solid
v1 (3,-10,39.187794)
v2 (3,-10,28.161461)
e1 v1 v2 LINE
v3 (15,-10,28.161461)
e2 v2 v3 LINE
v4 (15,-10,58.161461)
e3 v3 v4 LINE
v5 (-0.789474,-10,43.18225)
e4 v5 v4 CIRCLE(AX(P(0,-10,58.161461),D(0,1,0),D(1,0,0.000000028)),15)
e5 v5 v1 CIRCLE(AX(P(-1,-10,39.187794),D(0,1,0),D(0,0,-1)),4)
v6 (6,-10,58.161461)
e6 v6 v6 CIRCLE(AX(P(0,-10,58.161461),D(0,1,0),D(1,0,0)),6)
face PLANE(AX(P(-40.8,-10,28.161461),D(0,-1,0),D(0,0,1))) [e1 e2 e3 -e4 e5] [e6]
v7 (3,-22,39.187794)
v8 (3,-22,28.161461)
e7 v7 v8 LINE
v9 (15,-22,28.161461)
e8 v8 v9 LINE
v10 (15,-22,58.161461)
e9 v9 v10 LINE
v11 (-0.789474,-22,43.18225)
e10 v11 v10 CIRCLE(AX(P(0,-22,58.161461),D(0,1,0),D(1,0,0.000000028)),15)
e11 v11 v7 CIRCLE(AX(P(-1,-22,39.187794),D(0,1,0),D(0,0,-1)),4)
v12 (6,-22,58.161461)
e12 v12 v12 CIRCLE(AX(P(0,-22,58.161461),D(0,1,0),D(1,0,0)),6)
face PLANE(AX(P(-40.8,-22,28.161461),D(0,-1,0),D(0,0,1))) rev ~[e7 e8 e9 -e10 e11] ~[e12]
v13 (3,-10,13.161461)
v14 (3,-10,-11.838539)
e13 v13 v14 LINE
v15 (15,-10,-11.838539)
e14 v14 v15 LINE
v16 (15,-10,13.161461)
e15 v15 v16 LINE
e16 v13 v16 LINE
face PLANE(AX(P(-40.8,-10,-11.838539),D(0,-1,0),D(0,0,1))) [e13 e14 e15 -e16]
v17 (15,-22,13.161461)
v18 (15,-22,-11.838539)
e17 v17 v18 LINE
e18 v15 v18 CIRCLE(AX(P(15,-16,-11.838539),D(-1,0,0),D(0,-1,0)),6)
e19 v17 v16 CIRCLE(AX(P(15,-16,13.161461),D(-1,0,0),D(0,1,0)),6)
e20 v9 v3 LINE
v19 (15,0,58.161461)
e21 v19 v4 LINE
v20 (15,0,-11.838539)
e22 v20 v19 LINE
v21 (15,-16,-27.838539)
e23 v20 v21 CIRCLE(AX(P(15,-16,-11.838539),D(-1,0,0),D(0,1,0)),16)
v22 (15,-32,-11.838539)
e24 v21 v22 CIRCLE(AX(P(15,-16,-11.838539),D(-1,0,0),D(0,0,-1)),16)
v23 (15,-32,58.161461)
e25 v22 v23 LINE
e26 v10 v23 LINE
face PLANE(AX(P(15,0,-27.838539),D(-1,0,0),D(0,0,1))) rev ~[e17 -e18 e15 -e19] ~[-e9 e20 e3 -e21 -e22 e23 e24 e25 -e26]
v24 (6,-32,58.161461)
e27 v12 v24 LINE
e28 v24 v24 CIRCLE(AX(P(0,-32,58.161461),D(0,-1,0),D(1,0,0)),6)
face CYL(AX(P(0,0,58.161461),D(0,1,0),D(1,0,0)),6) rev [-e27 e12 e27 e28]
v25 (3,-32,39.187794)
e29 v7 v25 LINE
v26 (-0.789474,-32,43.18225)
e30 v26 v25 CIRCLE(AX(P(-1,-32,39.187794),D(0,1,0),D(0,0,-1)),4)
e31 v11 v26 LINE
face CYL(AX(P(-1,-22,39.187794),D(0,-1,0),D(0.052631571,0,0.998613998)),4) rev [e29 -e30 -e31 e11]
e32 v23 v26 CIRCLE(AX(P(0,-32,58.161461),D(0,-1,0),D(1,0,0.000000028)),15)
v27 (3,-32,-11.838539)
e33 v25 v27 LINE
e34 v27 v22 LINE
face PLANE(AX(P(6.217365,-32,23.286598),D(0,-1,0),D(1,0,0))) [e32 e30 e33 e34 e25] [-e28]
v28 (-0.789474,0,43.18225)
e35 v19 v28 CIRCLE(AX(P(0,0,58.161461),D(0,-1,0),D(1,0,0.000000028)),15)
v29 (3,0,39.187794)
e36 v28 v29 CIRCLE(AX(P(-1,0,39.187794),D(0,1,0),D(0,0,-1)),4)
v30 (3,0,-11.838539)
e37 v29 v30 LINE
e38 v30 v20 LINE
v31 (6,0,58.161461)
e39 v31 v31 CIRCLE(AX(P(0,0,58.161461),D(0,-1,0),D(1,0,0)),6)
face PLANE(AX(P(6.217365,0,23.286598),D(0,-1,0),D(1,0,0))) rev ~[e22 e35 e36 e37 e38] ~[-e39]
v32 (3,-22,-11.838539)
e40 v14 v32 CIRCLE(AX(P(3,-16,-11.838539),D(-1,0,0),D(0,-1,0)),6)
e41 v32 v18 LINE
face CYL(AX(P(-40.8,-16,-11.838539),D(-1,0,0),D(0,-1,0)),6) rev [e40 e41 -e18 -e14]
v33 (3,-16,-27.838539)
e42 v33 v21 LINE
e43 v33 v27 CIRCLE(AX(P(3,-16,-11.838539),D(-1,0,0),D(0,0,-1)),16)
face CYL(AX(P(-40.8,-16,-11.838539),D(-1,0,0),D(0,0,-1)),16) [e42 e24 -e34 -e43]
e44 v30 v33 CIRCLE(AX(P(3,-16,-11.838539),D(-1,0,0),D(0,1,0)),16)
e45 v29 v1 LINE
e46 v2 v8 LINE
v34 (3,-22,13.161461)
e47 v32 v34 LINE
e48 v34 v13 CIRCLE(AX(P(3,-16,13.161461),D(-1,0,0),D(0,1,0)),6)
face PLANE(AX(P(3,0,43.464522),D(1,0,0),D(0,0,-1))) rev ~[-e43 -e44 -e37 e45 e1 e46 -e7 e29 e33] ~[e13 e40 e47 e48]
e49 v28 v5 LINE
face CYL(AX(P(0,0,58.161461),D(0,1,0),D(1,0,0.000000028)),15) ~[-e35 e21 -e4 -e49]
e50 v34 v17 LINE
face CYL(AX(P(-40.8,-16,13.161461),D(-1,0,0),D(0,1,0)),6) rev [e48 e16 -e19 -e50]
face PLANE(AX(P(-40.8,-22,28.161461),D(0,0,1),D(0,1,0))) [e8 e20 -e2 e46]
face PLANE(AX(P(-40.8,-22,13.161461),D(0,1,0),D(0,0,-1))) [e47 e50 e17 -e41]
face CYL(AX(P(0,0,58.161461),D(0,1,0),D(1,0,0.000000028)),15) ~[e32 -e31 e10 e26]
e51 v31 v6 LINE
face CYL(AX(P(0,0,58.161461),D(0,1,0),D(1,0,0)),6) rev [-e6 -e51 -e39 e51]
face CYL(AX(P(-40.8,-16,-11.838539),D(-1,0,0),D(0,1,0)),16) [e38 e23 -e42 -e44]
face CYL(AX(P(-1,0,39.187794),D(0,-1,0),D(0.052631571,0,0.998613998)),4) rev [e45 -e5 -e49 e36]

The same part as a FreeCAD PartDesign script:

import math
import FreeCAD as App
import Part
import Sketcher
from FreeCAD import Vector


def edges_at(feature, points):
    """Names of the edges that pass closest to the given points."""
    edges = feature.Shape.Edges
    near = lambda p: min(range(len(edges)), key=lambda i: edges[i].distToShape(Part.Vertex(*p))[0])
    return sorted({f"Edge{near(p) + 1}" for p in points})

doc = App.newDocument("Part")
body = doc.addObject("PartDesign::Body", "Body")

# Sketch on XZ plane
sketch1 = body.newObject("Sketcher::SketchObject", "Sketch")
sketch1.AttachmentSupport = (doc.getObject("XZ_Plane"), [""])
sketch1.MapMode = "FlatFace"
sketch1.addGeometry([
    Part.LineSegment(Vector(15, -27.838539, 0), Vector(15, 58.161461, 0)),  # 0
    Part.ArcOfCircle(Part.Circle(Vector(0, 58.161461, 0), Vector(0, 0, 1), 15), math.radians(0.000002), math.radians(281.536959)),  # 1
    Part.LineSegment(Vector(3, 43.464522, 0), Vector(3, -27.838539, 0)),  # 2
    Part.LineSegment(Vector(3, -27.838539, 0), Vector(15, -27.838539, 0)),  # 3
    Part.Circle(Vector(0, 58.161461, 0), Vector(0, 0, 1), 6),  # 4
], False)
sketch1.addConstraint([
    Sketcher.Constraint("Tangent", 0, 2, 1, 1),
    Sketcher.Constraint("Coincident", 1, 2, 2, 1),
    Sketcher.Constraint("Coincident", 2, 2, 3, 1),
    Sketcher.Constraint("Coincident", 3, 2, 0, 1),
    Sketcher.Constraint("Vertical", 0),
    Sketcher.Constraint("Vertical", 2),
    Sketcher.Constraint("Horizontal", 3),
    Sketcher.Constraint("Coincident", 4, 3, 1, 3),
    Sketcher.Constraint("PointOnObject", 1, 3, -2),
    Sketcher.Constraint("Diameter", 4, 12.0),
    Sketcher.Constraint("Radius", 1, 15.0),
    Sketcher.Constraint("DistanceX", 3, 1, 3, 2, 12.0),
    Sketcher.Constraint("DistanceY", 0, 1, 0, 2, 86.0),
    Sketcher.Constraint("DistanceY", -1, 1, 1, 3, 58.161461),
])
pad1 = body.newObject("PartDesign::Pad", "Pad")
pad1.Profile = sketch1
pad1.Length = 32

# Sketch on YZ plane
sketch2 = body.newObject("Sketcher::SketchObject", "Sketch001")
sketch2.AttachmentSupport = (doc.getObject("YZ_Plane"), [""])
sketch2.MapMode = "FlatFace"
sketch2.AttachmentOffset = App.Placement(Vector(0, 0, -40.8), App.Rotation())
sketch2.addGeometry([
    Part.LineSegment(Vector(0, -27.838539, 0), Vector(0, -11.838539, 0)),  # 0
    Part.ArcOfCircle(Part.Circle(Vector(-16, -11.838539, 0), Vector(0, 0, 1), 16), math.radians(-90), math.radians(0)),  # 1
    Part.LineSegment(Vector(-16, -27.838539, 0), Vector(0, -27.838539, 0)),  # 2
    Part.LineSegment(Vector(-32, -27.838539, 0), Vector(-16, -27.838539, 0)),  # 3
    Part.ArcOfCircle(Part.Circle(Vector(-16, -11.838539, 0), Vector(0, 0, 1), 16), math.radians(180), math.radians(270)),  # 4
    Part.LineSegment(Vector(-32, -11.838539, 0), Vector(-32, -27.838539, 0)),  # 5
    Part.LineSegment(Vector(-10, -11.838539, 0), Vector(-10, 13.161461, 0)),  # 6
    Part.ArcOfCircle(Part.Circle(Vector(-16, 13.161461, 0), Vector(0, 0, 1), 6), math.radians(0), math.radians(180)),  # 7
    Part.LineSegment(Vector(-22, 13.161461, 0), Vector(-22, -11.838539, 0)),  # 8
    Part.ArcOfCircle(Part.Circle(Vector(-16, -11.838539, 0), Vector(0, 0, 1), 6), math.radians(180), math.radians(360)),  # 9
    Part.LineSegment(Vector(-22, 73.161461, 0), Vector(-22, 28.161461, 0)),  # 10
    Part.LineSegment(Vector(-22, 28.161461, 0), Vector(-10, 28.161461, 0)),  # 11
    Part.LineSegment(Vector(-10, 28.161461, 0), Vector(-10, 73.161461, 0)),  # 12
    Part.LineSegment(Vector(-10, 73.161461, 0), Vector(-22, 73.161461, 0)),  # 13
], False)
sketch2.addConstraint([
    Sketcher.Constraint("Tangent", 0, 2, 1, 2),
    Sketcher.Constraint("Tangent", 1, 1, 2, 1),
    Sketcher.Constraint("Coincident", 2, 2, 0, 1),
    Sketcher.Constraint("Tangent", 3, 2, 4, 2),
    Sketcher.Constraint("Tangent", 4, 1, 5, 1),
    Sketcher.Constraint("Coincident", 5, 2, 3, 1),
    Sketcher.Constraint("Tangent", 6, 2, 7, 1),
    Sketcher.Constraint("Tangent", 7, 2, 8, 1),
    Sketcher.Constraint("Tangent", 8, 2, 9, 1),
    Sketcher.Constraint("Tangent", 9, 2, 6, 1),
    Sketcher.Constraint("Coincident", 10, 2, 11, 1),
    Sketcher.Constraint("Coincident", 11, 2, 12, 1),
    Sketcher.Constraint("Coincident", 12, 2, 13, 1),
    Sketcher.Constraint("Coincident", 13, 2, 10, 1),
    Sketcher.Constraint("Vertical", 0),
    Sketcher.Constraint("Horizontal", 2),
    Sketcher.Constraint("Horizontal", 3),
    Sketcher.Constraint("Vertical", 5),
    Sketcher.Constraint("Vertical", 6),
    Sketcher.Constraint("Vertical", 8),
    Sketcher.Constraint("Vertical", 10),
    Sketcher.Constraint("Horizontal", 11),
    Sketcher.Constraint("Vertical", 12),
    Sketcher.Constraint("Horizontal", 13),
    Sketcher.Constraint("Coincident", 4, 3, 1, 3),
    Sketcher.Constraint("Coincident", 9, 3, 1, 3),
    Sketcher.Constraint("Equal", 1, 4),
    Sketcher.Constraint("PointOnObject", 0, 2, -2),
    Sketcher.Constraint("Vertical", 8, 2, 10, 2),
    Sketcher.Constraint("Vertical", 9, 2, 11, 2),
    Sketcher.Constraint("Radius", 1, 16.0),
    Sketcher.Constraint("Radius", 7, 6.0),
    Sketcher.Constraint("DistanceY", 6, 1, 6, 2, 25.0),
    Sketcher.Constraint("DistanceY", 10, 2, 10, 1, 45.0),
    Sketcher.Constraint("DistanceY", 7, 2, 10, 2, 15.0),
    Sketcher.Constraint("DistanceY", 1, 3, -1, 1, 11.838539),
])
pocket1 = body.newObject("PartDesign::Pocket", "Pocket")
pocket1.Profile = sketch2
pocket1.Type = "ThroughAll"
pocket1.Reversed = True
doc.recompute()

fillet = body.newObject("PartDesign::Fillet", "Fillet")
fillet.Base = (pocket1, edges_at(pocket1, [(3, -5, 43.465), (3, -27, 43.465)]))
fillet.Radius = 4

doc.recompute()
